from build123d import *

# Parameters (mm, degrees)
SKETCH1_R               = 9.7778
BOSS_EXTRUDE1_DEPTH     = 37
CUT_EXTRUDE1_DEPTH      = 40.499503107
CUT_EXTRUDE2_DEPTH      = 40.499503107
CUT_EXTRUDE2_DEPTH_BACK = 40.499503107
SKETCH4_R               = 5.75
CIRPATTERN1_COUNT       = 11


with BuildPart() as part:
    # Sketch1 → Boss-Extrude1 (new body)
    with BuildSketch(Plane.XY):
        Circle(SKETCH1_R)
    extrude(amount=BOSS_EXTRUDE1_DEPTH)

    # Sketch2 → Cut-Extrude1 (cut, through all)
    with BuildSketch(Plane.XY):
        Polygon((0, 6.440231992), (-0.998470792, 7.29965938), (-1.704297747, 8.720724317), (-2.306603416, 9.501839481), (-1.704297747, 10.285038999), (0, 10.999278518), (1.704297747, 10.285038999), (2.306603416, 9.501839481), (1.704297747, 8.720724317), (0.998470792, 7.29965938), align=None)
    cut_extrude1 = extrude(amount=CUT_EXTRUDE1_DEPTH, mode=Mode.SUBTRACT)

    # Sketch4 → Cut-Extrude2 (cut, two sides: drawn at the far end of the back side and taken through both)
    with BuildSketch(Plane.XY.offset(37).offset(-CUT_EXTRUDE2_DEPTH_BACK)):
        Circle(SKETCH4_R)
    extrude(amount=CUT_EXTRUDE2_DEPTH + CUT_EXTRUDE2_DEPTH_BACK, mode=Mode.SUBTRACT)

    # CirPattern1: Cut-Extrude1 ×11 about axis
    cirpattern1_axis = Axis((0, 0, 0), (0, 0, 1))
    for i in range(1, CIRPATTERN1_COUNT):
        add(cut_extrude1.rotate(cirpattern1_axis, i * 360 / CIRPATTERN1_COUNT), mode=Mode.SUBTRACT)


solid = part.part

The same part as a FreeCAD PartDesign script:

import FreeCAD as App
import Part
import Sketcher
Q = App.Units.Quantity


def add_polygon(sketch, points):
    """Adds a closed chain of lines whose ends are joined by coincident constraints."""
    first, n = sketch.GeometryCount, len(points)
    for a, b in zip(points, points[1:] + points[:1]):
        sketch.addGeometry(Part.LineSegment(App.Vector(*a, 0), App.Vector(*b, 0)), False)
    for i in range(n):
        sketch.addConstraint(Sketcher.Constraint("Coincident", first + i, 2, first + (i + 1) % n, 1))

doc = App.newDocument("Part")
body = doc.addObject("PartDesign::Body", "Body")

# Sketch on XY plane
sketch1 = doc.addObject("Sketcher::SketchObject", "Sketch")
body.addObject(sketch1)
sketch1.AttachmentSupport = (doc.XY_Plane, [""])
sketch1.MapMode = "FlatFace"
sketch1.addGeometry(Part.Circle(App.Vector(0, 0, 0), App.Vector(0, 0, 1), 9.7778), False)
sketch1.addConstraint([
    Sketcher.Constraint("Coincident", 0, 3, -1, 1),
    Sketcher.Constraint("Diameter", 0, Q("19.5556 mm")),
])
pad1 = doc.addObject("PartDesign::Pad", "Pad")
body.addObject(pad1)
pad1.Profile = sketch1
pad1.Length = 37

# Sketch on XY plane
sketch2 = doc.addObject("Sketcher::SketchObject", "Sketch001")
body.addObject(sketch2)
sketch2.AttachmentSupport = (doc.XY_Plane, [""])
sketch2.MapMode = "FlatFace"
add_polygon(sketch2, [(-0.998471, 7.299659), (0, 6.440232), (0.998471, 7.299659), (1.704298, 8.720724), (2.306603, 9.501839), (1.704298, 10.285039), (0, 10.999279), (-1.704298, 10.285039), (-2.306603, 9.501839), (-1.704298, 8.720724)])  # lines 0-9
sketch2.addConstraint([
    Sketcher.Constraint("Symmetric", 4, 2, 6, 2, -2),
    Sketcher.Constraint("Symmetric", 3, 2, 7, 2, -2),
    Sketcher.Constraint("Symmetric", 2, 2, 8, 2, -2),
    Sketcher.Constraint("Symmetric", 1, 2, 9, 2, -2),
    Sketcher.Constraint("PointOnObject", 0, 2, -2),
    Sketcher.Constraint("PointOnObject", 5, 2, -2),
    Sketcher.Constraint("Vertical", 2, 2, 4, 2),
    Sketcher.Constraint("Angle", 0, Q("-40.720015 deg")),
    Sketcher.Constraint("Distance", 2, Q("1.5867 mm")),
    Sketcher.Constraint("DistanceY", 3, 2, 4, 2, Q("0.7832 mm")),
    Sketcher.Constraint("DistanceX", 6, 2, 3, 2, Q("4.010901 mm")),
    Sketcher.Constraint("Distance", 5, Q("1.847909 mm")),
    Sketcher.Constraint("DistanceY", -1, 1, 0, 2, Q("6.440232 mm")),
    Sketcher.Constraint("DistanceX", -1, 1, 1, 2, Q("0.998471 mm")),
    Sketcher.Constraint("DistanceY", -1, 1, 3, 2, Q("9.501839 mm")),
    Sketcher.Constraint("DistanceY", -1, 1, 5, 2, Q("10.999279 mm")),
])
pocket1 = doc.addObject("PartDesign::Pocket", "Pocket")
body.addObject(pocket1)
pocket1.Profile = sketch2
pocket1.Type = "ThroughAll"
pocket1.Reversed = True

# Sketch on XY plane
sketch3 = doc.addObject("Sketcher::SketchObject", "Sketch002")
body.addObject(sketch3)
sketch3.AttachmentSupport = (doc.XY_Plane, [""])
sketch3.MapMode = "FlatFace"
sketch3.AttachmentOffset = App.Placement(App.Vector(0, 0, 37), App.Rotation())
sketch3.addGeometry(Part.Circle(App.Vector(0, 0, 0), App.Vector(0, 0, 1), 5.75), False)
sketch3.addConstraint([
    Sketcher.Constraint("Coincident", 0, 3, -1, 1),
    Sketcher.Constraint("Diameter", 0, Q("11.5 mm")),
])
pocket2 = doc.addObject("PartDesign::Pocket", "Pocket001")
body.addObject(pocket2)
pocket2.Profile = sketch3
pocket2.Type = "ThroughAll"
pocket2.Midplane = True
doc.recompute()

polarpattern = doc.addObject("PartDesign::PolarPattern", "PolarPattern")
body.addObject(polarpattern)
polarpattern.Originals = [pocket1]
polarpattern.Axis = (doc.Z_Axis, [""])
polarpattern.Angle = 360
polarpattern.Occurrences = 11
body.Tip = polarpattern

doc.recompute()
